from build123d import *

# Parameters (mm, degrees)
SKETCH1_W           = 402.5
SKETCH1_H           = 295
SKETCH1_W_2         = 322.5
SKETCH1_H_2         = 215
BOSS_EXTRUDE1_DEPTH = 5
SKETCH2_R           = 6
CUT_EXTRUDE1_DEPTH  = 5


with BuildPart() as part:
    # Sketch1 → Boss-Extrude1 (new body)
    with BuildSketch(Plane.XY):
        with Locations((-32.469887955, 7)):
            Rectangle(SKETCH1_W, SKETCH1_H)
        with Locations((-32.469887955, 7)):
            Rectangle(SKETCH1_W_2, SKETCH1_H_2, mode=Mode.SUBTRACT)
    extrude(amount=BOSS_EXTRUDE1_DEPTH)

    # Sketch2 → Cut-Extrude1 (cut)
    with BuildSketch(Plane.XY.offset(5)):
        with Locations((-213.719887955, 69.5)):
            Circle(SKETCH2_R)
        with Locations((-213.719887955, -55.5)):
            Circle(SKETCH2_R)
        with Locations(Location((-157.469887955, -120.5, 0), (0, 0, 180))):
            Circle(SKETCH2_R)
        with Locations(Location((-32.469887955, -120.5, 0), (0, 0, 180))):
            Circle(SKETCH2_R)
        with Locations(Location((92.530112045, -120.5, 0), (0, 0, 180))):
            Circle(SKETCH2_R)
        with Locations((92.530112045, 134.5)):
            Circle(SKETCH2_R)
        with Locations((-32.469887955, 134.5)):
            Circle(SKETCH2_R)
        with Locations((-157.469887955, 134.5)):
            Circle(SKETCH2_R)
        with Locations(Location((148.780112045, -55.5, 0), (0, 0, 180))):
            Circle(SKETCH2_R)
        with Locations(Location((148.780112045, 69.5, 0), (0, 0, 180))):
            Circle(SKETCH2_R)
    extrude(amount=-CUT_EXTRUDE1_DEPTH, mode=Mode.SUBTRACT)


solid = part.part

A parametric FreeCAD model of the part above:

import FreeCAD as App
import Part
import Sketcher
Q = App.Units.Quantity

doc = App.newDocument("Part")
params = doc.addObject("Spreadsheet::Sheet", "Params")
for row, (alias, value) in enumerate([
    ("sketch1_height", "295 mm"),
    ("sketch1_height2", "215 mm"),
    ("sketch1_width", "402.5 mm"),
    ("sketch1_width2", "322.5 mm"),
    ("pad1_length", "5 mm"),
    ("sketch2_diameter", "12 mm"),
    ("pocket1_length", "5 mm"),
], start=1):
    params.set(f"A{row}", alias)
    params.set(f"B{row}", "=" + value)
    params.setAlias(f"B{row}", alias)

body = doc.addObject("PartDesign::Body", "Body")

sketch1 = body.newObject("Sketcher::SketchObject", "Sketch")
sketch1.AttachmentSupport = (doc.getObject("XY_Plane"), [""])
sketch1.MapMode = "FlatFace"
sketch1.addGeometry(Part.LineSegment(App.Vector(-234, 154, 0), App.Vector(-234, -140, 0)), False)
sketch1.addGeometry(Part.LineSegment(App.Vector(-234, -140, 0), App.Vector(169, -140, 0)), False)
sketch1.addGeometry(Part.LineSegment(App.Vector(169, -140, 0), App.Vector(169, 154, 0)), False)
sketch1.addGeometry(Part.LineSegment(App.Vector(169, 154, 0), App.Vector(-234, 154, 0)), False)
sketch1.addGeometry(Part.LineSegment(App.Vector(129, -100, 0), App.Vector(-194, -100, 0)), False)
sketch1.addGeometry(Part.LineSegment(App.Vector(-194, -100, 0), App.Vector(-194, 114, 0)), False)
sketch1.addGeometry(Part.LineSegment(App.Vector(-194, 114, 0), App.Vector(129, 114, 0)), False)
sketch1.addGeometry(Part.LineSegment(App.Vector(129, 114, 0), App.Vector(129, -100, 0)), False)
sketch1.addConstraint(Sketcher.Constraint("Coincident", 0, 2, 1, 1))
sketch1.addConstraint(Sketcher.Constraint("Coincident", 1, 2, 2, 1))
sketch1.addConstraint(Sketcher.Constraint("Coincident", 2, 2, 3, 1))
sketch1.addConstraint(Sketcher.Constraint("Coincident", 3, 2, 0, 1))
sketch1.addConstraint(Sketcher.Constraint("Coincident", 4, 2, 5, 1))
sketch1.addConstraint(Sketcher.Constraint("Coincident", 5, 2, 6, 1))
sketch1.addConstraint(Sketcher.Constraint("Coincident", 6, 2, 7, 1))
sketch1.addConstraint(Sketcher.Constraint("Coincident", 7, 2, 4, 1))
sketch1.addConstraint(Sketcher.Constraint("Vertical", 0))
sketch1.addConstraint(Sketcher.Constraint("Horizontal", 1))
sketch1.addConstraint(Sketcher.Constraint("Vertical", 2))
sketch1.addConstraint(Sketcher.Constraint("Horizontal", 3))
sketch1.addConstraint(Sketcher.Constraint("Horizontal", 4))
sketch1.addConstraint(Sketcher.Constraint("Vertical", 5))
sketch1.addConstraint(Sketcher.Constraint("Horizontal", 6))
sketch1.addConstraint(Sketcher.Constraint("Vertical", 7))
sketch1.addConstraint(Sketcher.Constraint("DistanceY", 0, 2, 0, 1, Q("295 mm")))
sketch1.addConstraint(Sketcher.Constraint("DistanceY", 5, 1, 5, 2, Q("215 mm")))
sketch1.addConstraint(Sketcher.Constraint("DistanceX", 1, 1, 1, 2, Q("402.5 mm")))
sketch1.addConstraint(Sketcher.Constraint("DistanceX", 4, 2, 4, 1, Q("322.5 mm")))
sketch1.addConstraint(Sketcher.Constraint("DistanceX", 0, 2, 4, 2, Q("40 mm")))
sketch1.addConstraint(Sketcher.Constraint("DistanceY", 0, 2, 4, 2, Q("40 mm")))
sketch1.addConstraint(Sketcher.Constraint("DistanceY", 0, 2, -1, 1, Q("140.5 mm")))
sketch1.addConstraint(Sketcher.Constraint("DistanceX", 0, 2, -1, 1, Q("233.719888 mm")))
sketch1.setExpression("Constraints[16]", "Params.sketch1_height")
sketch1.setExpression("Constraints[17]", "Params.sketch1_height2")
sketch1.setExpression("Constraints[18]", "Params.sketch1_width")
sketch1.setExpression("Constraints[19]", "Params.sketch1_width2")
pad1 = body.newObject("PartDesign::Pad", "Pad")
pad1.Profile = sketch1
pad1.setExpression("Length", "Params.pad1_length")

sketch2 = body.newObject("Sketcher::SketchObject", "Sketch001")
sketch2.AttachmentSupport = (doc.getObject("XY_Plane"), [""])
sketch2.MapMode = "FlatFace"
sketch2.AttachmentOffset = App.Placement(App.Vector(0, 0, 5), App.Rotation())
sketch2.addGeometry(Part.Circle(App.Vector(-214, 70, 0), App.Vector(0, 0, 1), 6), False)
sketch2.addGeometry(Part.Circle(App.Vector(-214, -56, 0), App.Vector(0, 0, 1), 6), False)
sketch2.addGeometry(Part.Circle(App.Vector(-157, -120, 0), App.Vector(0, 0, 1), 6), False)
sketch2.addGeometry(Part.Circle(App.Vector(-32, -120, 0), App.Vector(0, 0, 1), 6), False)
sketch2.addGeometry(Part.Circle(App.Vector(93, -120, 0), App.Vector(0, 0, 1), 6), False)
sketch2.addGeometry(Part.Circle(App.Vector(93, 134, 0), App.Vector(0, 0, 1), 6), False)
sketch2.addGeometry(Part.Circle(App.Vector(-32, 134, 0), App.Vector(0, 0, 1), 6), False)
sketch2.addGeometry(Part.Circle(App.Vector(-157, 134, 0), App.Vector(0, 0, 1), 6), False)
sketch2.addGeometry(Part.Circle(App.Vector(149, -56, 0), App.Vector(0, 0, 1), 6), False)
sketch2.addGeometry(Part.Circle(App.Vector(149, 70, 0), App.Vector(0, 0, 1), 6), False)
sketch2.addConstraint(Sketcher.Constraint("Equal", 0, 1))
sketch2.addConstraint(Sketcher.Constraint("Equal", 1, 2))
sketch2.addConstraint(Sketcher.Constraint("Equal", 2, 3))
sketch2.addConstraint(Sketcher.Constraint("Equal", 3, 4))
sketch2.addConstraint(Sketcher.Constraint("Equal", 4, 5))
sketch2.addConstraint(Sketcher.Constraint("Equal", 5, 6))
sketch2.addConstraint(Sketcher.Constraint("Equal", 6, 7))
sketch2.addConstraint(Sketcher.Constraint("Equal", 7, 8))
sketch2.addConstraint(Sketcher.Constraint("Equal", 8, 9))
sketch2.addConstraint(Sketcher.Constraint("Horizontal", 2, 3, 3, 3))
sketch2.addConstraint(Sketcher.Constraint("Horizontal", 3, 3, 4, 3))
sketch2.addConstraint(Sketcher.Constraint("Horizontal", 5, 3, 6, 3))
sketch2.addConstraint(Sketcher.Constraint("Horizontal", 6, 3, 7, 3))
sketch2.addConstraint(Sketcher.Constraint("Horizontal", 1, 3, 8, 3))
sketch2.addConstraint(Sketcher.Constraint("Horizontal", 0, 3, 9, 3))
sketch2.addConstraint(Sketcher.Constraint("Vertical", 0, 3, 1, 3))
sketch2.addConstraint(Sketcher.Constraint("Vertical", 4, 3, 5, 3))
sketch2.addConstraint(Sketcher.Constraint("Vertical", 3, 3, 6, 3))
sketch2.addConstraint(Sketcher.Constraint("Vertical", 2, 3, 7, 3))
sketch2.addConstraint(Sketcher.Constraint("Vertical", 8, 3, 9, 3))
sketch2.addConstraint(Sketcher.Constraint("Diameter", 0, Q("12 mm")))
sketch2.addConstraint(Sketcher.Constraint("DistanceY", 1, 3, 0, 3, Q("125 mm")))
sketch2.addConstraint(Sketcher.Constraint("DistanceY", 2, 3, 1, 3, Q("65 mm")))
sketch2.addConstraint(Sketcher.Constraint("DistanceX", 2, 3, 3, 3, Q("125 mm")))
sketch2.addConstraint(Sketcher.Constraint("DistanceX", 3, 3, 4, 3, Q("125 mm")))
sketch2.addConstraint(Sketcher.Constraint("DistanceY", 4, 3, 5, 3, Q("255 mm")))
sketch2.addConstraint(Sketcher.Constraint("DistanceY", -1, 1, 0, 3, Q("69.5 mm")))
sketch2.addConstraint(Sketcher.Constraint("DistanceX", 1, 3, 2, 3, Q("56.25 mm")))
sketch2.addConstraint(Sketcher.Constraint("DistanceX", 4, 3, 8, 3, Q("56.25 mm")))
sketch2.addConstraint(Sketcher.Constraint("DistanceX", 0, 3, -1, 1, Q("213.719888 mm")))
sketch2.setExpression("Constraints[20]", "Params.sketch2_diameter")
pocket1 = body.newObject("PartDesign::Pocket", "Pocket")
pocket1.Profile = sketch2
pocket1.setExpression("Length", "Params.pocket1_length")

doc.recompute()
